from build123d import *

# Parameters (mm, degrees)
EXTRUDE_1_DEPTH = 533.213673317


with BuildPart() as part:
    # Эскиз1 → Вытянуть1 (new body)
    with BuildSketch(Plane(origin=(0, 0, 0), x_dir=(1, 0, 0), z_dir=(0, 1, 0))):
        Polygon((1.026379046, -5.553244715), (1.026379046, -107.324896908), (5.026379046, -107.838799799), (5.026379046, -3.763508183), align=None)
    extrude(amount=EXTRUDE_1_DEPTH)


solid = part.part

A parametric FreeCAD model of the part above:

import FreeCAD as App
import Part
import Sketcher
Q = App.Units.Quantity

doc = App.newDocument("Part")
body = doc.addObject("PartDesign::Body", "Body")

sketch1 = body.newObject("Sketcher::SketchObject", "Sketch")
sketch1.AttachmentSupport = (doc.getObject("XZ_Plane"), [""])
sketch1.MapMode = "FlatFace"
sketch1.addGeometry([
    Part.LineSegment(App.Vector(1.026379, 5.553245, 0), App.Vector(1.026379, 107.324897, 0)),
    Part.LineSegment(App.Vector(1.026379, 107.324897, 0), App.Vector(5.026379, 107.8388, 0)),
    Part.LineSegment(App.Vector(5.026379, 107.8388, 0), App.Vector(5.026379, 3.763508, 0)),
    Part.LineSegment(App.Vector(5.026379, 3.763508, 0), App.Vector(1.026379, 5.553245, 0)),
], False)
sketch1.addConstraint([
    Sketcher.Constraint("Coincident", 0, 2, 1, 1),
    Sketcher.Constraint("Coincident", 1, 2, 2, 1),
    Sketcher.Constraint("Coincident", 2, 2, 3, 1),
    Sketcher.Constraint("Coincident", 3, 2, 0, 1),
    Sketcher.Constraint("Vertical", 0),
    Sketcher.Constraint("Vertical", 2),
    Sketcher.Constraint("DistanceX", 0, 2, 1, 2, Q("4 mm")),
    Sketcher.Constraint("DistanceY", 2, 2, 2, 1, Q("104.075292 mm")),
    Sketcher.Constraint("DistanceY", -1, 1, 1, 2, Q("107.8388 mm")),
    Sketcher.Constraint("Distance", 3, Q("4.382141 mm")),
    Sketcher.Constraint("DistanceY", 0, 1, 0, 2, Q("101.771652 mm")),
    Sketcher.Constraint("DistanceX", -1, 1, 0, 2, Q("1.026379 mm")),
])
pad1 = body.newObject("PartDesign::Pad", "Pad")
pad1.Profile = sketch1
pad1.Length = 533.213673
pad1.Reversed = True

doc.recompute()
